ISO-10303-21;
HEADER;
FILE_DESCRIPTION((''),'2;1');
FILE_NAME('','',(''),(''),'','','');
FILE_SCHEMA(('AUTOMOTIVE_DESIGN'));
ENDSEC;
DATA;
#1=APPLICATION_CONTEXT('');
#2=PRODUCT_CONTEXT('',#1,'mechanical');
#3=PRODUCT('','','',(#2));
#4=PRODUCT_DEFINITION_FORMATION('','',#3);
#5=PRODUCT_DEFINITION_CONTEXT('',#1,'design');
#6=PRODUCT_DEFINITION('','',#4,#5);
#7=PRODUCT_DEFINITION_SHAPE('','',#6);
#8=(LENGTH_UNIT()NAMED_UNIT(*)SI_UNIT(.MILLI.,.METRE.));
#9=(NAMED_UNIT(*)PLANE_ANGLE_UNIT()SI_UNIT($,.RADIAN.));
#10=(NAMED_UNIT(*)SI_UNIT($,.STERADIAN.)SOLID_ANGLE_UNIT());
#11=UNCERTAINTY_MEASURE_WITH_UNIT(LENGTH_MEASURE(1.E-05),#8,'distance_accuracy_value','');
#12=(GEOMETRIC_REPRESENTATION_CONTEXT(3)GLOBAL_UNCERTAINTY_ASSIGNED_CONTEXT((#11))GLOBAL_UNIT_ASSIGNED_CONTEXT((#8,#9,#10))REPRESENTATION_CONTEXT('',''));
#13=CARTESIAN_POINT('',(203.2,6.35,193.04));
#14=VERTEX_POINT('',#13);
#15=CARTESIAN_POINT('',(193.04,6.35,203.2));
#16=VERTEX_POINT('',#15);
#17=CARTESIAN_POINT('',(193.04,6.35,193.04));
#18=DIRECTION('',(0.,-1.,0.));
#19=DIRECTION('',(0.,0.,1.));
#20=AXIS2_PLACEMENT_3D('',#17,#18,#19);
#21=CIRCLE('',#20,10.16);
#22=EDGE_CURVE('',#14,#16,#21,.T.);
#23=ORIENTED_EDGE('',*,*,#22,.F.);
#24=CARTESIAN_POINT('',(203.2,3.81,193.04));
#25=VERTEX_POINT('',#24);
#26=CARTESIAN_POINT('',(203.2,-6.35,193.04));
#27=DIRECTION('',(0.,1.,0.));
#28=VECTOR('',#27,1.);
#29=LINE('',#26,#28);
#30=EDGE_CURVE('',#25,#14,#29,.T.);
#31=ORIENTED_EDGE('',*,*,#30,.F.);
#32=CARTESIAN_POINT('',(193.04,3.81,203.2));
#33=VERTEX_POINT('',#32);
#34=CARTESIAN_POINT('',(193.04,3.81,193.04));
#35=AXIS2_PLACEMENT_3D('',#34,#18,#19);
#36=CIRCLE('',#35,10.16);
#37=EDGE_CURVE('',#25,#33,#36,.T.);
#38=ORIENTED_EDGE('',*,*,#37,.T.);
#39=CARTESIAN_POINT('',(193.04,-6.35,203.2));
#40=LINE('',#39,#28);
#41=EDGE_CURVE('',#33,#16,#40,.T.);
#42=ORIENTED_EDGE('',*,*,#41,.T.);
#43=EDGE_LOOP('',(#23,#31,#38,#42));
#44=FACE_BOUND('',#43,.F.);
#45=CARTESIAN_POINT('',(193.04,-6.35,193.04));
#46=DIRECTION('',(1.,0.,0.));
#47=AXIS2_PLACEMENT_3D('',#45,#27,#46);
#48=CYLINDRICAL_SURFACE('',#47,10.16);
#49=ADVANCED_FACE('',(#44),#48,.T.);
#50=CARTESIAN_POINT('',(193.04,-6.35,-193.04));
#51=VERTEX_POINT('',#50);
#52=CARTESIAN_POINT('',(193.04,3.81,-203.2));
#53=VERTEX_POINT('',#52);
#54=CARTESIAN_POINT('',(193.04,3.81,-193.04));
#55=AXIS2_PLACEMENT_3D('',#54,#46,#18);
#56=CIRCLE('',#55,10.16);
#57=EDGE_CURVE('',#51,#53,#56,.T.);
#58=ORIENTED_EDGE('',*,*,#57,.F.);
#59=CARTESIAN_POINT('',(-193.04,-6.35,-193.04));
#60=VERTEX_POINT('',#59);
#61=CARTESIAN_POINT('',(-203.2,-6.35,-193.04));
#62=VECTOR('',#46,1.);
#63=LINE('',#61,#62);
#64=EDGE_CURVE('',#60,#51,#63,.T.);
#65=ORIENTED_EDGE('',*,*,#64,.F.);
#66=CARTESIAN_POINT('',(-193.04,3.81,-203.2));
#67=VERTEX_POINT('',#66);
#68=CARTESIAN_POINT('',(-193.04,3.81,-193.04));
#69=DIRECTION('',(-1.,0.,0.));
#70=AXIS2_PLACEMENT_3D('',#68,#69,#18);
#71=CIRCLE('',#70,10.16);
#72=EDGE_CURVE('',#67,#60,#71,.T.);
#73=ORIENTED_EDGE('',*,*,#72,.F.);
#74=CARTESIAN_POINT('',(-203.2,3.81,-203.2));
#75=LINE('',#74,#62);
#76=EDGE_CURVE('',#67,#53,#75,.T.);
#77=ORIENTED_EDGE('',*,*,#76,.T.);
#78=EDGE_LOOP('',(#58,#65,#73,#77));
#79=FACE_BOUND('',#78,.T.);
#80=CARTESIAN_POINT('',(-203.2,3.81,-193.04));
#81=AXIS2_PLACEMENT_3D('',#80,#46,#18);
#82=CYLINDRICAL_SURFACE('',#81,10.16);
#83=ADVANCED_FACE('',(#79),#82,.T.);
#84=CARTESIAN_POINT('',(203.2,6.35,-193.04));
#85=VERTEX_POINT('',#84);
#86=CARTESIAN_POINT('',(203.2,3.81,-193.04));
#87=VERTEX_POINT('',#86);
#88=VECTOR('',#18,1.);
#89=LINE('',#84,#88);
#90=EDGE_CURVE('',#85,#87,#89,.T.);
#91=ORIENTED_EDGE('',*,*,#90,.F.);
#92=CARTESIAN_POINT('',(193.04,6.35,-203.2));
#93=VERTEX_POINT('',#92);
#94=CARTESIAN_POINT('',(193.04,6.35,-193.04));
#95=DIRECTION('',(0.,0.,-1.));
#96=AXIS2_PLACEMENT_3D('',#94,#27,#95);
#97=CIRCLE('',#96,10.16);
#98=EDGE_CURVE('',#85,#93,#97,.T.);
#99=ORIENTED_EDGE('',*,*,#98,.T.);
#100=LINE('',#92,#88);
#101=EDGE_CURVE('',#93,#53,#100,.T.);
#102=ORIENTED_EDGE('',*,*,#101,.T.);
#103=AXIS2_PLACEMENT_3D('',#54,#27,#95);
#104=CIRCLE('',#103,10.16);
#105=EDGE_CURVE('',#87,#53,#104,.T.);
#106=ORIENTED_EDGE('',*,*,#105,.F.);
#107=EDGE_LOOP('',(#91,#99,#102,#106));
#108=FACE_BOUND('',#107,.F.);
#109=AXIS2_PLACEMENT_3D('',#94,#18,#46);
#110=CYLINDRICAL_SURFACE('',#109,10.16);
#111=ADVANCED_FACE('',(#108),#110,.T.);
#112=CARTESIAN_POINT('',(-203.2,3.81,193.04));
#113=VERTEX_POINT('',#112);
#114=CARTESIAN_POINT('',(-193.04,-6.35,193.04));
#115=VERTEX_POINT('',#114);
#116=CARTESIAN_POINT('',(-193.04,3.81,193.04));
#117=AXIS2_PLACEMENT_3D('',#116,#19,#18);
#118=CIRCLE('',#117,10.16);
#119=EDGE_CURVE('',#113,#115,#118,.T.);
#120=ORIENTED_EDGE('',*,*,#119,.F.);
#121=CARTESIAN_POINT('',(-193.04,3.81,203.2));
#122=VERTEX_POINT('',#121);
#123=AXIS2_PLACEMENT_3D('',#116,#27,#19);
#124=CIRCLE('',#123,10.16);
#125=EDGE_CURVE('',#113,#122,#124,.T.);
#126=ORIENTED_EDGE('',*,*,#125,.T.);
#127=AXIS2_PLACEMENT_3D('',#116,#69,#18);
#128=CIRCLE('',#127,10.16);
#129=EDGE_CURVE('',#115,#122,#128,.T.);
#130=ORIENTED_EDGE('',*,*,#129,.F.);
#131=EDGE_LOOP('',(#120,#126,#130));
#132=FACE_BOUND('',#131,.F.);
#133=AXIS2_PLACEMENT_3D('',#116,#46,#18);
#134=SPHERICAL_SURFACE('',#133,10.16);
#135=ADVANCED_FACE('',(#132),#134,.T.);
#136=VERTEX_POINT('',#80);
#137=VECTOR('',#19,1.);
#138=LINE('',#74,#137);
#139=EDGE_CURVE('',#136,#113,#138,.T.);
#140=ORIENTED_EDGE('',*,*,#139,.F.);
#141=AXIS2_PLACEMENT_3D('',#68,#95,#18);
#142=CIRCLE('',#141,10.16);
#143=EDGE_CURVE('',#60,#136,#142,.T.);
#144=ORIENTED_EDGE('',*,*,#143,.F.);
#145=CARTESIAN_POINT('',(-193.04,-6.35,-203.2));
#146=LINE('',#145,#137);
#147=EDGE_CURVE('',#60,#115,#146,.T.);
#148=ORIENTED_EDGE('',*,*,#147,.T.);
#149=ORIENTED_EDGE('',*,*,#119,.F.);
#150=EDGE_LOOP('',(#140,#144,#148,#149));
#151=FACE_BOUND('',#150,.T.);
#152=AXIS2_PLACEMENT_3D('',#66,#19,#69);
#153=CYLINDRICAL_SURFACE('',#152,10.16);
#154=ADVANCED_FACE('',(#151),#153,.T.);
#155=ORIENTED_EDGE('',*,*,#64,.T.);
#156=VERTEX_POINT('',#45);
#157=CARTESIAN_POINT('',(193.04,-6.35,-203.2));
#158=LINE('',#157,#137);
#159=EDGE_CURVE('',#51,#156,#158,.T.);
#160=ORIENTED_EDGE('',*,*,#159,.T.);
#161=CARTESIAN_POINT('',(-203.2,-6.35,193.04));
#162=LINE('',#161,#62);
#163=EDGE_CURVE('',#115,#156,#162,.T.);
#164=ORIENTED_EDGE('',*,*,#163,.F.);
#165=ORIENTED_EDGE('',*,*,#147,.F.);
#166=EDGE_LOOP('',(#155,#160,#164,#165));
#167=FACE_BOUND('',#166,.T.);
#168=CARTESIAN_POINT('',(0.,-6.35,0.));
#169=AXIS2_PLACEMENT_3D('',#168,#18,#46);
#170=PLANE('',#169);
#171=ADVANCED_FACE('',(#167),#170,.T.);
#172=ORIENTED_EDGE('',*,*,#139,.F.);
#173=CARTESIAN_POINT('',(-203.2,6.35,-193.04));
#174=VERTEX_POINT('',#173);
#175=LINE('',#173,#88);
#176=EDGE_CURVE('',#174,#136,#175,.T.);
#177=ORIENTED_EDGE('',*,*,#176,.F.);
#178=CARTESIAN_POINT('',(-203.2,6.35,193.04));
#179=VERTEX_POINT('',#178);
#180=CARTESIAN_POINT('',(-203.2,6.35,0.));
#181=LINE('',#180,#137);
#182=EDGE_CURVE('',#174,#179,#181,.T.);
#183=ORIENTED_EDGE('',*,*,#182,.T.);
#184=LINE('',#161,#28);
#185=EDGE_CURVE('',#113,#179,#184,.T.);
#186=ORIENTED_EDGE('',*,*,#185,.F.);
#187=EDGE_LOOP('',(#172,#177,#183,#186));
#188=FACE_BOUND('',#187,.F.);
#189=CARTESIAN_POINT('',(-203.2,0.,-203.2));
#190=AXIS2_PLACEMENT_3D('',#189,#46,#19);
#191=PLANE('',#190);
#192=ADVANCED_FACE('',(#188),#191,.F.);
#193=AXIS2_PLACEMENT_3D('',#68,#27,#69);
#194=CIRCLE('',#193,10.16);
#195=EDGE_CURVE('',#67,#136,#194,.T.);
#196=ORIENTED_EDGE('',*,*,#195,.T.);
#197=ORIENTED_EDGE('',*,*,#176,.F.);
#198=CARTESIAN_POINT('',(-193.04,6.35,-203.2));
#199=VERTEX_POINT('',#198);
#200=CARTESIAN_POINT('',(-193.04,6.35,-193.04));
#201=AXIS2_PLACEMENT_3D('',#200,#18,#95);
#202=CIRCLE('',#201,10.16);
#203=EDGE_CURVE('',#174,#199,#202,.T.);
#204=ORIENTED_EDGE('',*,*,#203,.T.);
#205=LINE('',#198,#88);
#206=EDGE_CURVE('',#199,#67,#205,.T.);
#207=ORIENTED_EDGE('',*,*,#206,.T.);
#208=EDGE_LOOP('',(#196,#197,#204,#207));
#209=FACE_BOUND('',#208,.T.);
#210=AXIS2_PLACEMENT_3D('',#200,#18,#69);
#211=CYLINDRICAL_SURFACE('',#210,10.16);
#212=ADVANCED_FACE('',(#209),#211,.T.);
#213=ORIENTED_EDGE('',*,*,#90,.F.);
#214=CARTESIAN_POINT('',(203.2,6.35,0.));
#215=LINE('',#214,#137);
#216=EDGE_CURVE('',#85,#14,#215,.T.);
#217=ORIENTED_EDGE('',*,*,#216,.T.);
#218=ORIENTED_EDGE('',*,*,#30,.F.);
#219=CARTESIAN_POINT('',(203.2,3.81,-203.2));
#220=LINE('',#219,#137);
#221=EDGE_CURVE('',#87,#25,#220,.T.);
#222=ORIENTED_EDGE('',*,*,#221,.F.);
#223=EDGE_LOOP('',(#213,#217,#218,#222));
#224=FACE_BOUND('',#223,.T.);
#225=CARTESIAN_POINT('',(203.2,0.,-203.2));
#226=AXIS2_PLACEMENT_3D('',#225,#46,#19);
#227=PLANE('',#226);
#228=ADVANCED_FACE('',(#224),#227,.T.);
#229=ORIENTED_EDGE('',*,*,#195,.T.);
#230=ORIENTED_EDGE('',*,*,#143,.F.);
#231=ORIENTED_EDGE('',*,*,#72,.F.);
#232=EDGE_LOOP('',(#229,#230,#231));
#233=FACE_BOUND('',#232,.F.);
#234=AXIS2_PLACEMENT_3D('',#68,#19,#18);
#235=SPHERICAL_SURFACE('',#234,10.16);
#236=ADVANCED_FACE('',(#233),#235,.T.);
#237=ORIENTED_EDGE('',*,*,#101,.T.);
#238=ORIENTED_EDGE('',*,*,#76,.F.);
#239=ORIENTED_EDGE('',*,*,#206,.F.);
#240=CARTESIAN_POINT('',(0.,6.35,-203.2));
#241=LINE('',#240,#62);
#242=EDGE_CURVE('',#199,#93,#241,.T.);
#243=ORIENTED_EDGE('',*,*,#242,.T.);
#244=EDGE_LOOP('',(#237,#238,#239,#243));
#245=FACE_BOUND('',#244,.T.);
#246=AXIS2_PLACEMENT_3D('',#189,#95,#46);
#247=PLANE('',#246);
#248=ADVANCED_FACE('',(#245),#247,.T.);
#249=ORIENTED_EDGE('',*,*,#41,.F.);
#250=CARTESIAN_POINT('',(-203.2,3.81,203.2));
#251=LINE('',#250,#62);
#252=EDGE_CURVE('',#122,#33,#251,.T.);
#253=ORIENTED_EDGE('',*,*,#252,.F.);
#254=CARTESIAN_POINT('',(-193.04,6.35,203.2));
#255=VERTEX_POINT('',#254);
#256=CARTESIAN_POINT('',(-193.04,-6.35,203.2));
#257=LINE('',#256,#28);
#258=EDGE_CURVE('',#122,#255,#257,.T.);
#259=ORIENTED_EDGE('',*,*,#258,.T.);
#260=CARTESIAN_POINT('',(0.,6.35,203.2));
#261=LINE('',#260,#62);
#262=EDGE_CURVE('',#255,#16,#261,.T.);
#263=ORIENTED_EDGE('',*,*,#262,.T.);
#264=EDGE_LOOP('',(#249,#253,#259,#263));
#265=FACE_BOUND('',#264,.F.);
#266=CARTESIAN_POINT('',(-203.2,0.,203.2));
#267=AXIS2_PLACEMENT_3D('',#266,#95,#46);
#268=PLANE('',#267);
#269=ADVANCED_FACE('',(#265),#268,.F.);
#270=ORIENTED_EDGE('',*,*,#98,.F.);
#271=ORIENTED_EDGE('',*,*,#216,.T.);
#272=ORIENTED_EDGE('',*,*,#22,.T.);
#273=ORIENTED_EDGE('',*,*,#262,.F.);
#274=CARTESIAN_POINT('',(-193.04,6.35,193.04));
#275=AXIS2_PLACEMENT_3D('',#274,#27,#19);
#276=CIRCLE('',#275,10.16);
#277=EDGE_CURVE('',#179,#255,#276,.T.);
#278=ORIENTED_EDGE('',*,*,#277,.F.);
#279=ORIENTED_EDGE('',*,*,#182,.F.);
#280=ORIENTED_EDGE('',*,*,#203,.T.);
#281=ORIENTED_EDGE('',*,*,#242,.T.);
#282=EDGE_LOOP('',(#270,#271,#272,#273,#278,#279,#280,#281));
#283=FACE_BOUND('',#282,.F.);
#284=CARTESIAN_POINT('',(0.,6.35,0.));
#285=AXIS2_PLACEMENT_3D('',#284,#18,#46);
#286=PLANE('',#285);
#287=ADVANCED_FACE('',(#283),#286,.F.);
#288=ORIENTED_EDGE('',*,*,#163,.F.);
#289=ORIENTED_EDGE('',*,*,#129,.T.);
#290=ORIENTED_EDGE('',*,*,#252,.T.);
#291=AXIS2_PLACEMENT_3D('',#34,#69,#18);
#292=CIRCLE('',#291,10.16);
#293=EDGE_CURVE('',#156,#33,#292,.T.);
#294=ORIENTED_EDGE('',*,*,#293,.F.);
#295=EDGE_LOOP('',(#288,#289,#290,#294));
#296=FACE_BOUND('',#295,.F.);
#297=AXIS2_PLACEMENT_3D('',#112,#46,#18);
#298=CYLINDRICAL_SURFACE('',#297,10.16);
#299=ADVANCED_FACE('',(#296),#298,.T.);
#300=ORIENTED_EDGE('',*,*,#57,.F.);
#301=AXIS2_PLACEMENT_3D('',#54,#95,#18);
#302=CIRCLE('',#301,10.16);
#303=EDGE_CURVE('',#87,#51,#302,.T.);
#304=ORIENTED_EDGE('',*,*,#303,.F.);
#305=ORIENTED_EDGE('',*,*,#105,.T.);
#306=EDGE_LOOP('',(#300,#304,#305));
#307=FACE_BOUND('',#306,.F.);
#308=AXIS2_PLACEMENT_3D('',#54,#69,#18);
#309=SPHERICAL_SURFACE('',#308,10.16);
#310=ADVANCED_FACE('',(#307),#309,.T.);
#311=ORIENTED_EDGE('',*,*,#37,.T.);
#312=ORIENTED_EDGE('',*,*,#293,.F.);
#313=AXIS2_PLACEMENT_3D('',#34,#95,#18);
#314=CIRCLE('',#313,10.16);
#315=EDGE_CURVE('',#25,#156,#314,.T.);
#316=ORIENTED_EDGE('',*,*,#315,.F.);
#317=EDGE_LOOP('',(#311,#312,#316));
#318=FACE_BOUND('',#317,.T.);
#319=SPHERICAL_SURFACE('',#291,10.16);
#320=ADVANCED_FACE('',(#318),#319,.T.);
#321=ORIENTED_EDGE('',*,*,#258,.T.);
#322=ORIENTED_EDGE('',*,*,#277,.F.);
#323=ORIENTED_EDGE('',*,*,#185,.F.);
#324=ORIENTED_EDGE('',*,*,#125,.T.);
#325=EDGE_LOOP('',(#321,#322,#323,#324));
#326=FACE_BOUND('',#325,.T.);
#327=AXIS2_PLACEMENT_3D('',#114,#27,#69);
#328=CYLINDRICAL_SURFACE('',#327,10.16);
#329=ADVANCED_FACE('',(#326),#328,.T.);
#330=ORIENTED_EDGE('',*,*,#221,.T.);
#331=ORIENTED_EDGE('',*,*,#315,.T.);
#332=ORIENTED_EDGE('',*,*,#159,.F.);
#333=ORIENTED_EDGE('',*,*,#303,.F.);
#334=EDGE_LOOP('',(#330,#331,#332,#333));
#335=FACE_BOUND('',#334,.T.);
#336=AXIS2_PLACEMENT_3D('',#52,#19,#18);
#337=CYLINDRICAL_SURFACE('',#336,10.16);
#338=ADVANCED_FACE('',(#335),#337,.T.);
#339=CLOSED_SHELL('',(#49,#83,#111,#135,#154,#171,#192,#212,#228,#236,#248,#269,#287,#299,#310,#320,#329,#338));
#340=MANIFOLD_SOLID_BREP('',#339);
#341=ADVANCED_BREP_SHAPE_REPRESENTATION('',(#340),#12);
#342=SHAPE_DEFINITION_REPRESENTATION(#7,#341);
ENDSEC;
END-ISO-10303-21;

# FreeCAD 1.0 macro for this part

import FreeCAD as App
import Part
import Sketcher

V = App.Vector
Q = App.Units.Quantity


def edges_at(feature, points):
    """Names of the edges that pass closest to the given points."""
    edges = feature.Shape.Edges
    near = lambda p: min(range(len(edges)), key=lambda i: edges[i].distToShape(Part.Vertex(*p))[0])
    return sorted({f"Edge{near(p) + 1}" for p in points})


def add_polygon(sketch, points):
    """Adds a closed chain of lines whose ends are joined by coincident constraints."""
    first, n = sketch.GeometryCount, len(points)
    for a, b in zip(points, points[1:] + points[:1]):
        sketch.addGeometry(Part.LineSegment(App.Vector(*a, 0), App.Vector(*b, 0)), False)
    for i in range(n):
        sketch.addConstraint(Sketcher.Constraint("Coincident", first + i, 2, first + (i + 1) % n, 1))

doc = App.newDocument("Part")
body = doc.addObject("PartDesign::Body", "Body")

# Sketch on XZ plane
sketch1 = doc.addObject("Sketcher::SketchObject", "Sketch")
body.addObject(sketch1)
sketch1.AttachmentSupport = (doc.XZ_Plane, [""])
sketch1.MapMode = "FlatFace"
add_polygon(sketch1, [(-203, 203), (-203, -203), (203, -203), (203, 203)])  # lines 0-3
sketch1.addConstraint(Sketcher.Constraint("Vertical", 0))
sketch1.addConstraint(Sketcher.Constraint("Horizontal", 1))
sketch1.addConstraint(Sketcher.Constraint("Vertical", 2))
sketch1.addConstraint(Sketcher.Constraint("Horizontal", 3))
sketch1.addConstraint(Sketcher.Constraint("Symmetric", 0, 2, 2, 2, -1, 1))
sketch1.addConstraint(Sketcher.Constraint("Equal", 3, 0))
sketch1.addConstraint(Sketcher.Constraint("DistanceX", 1, 1, 1, 2, Q("16 in")))
pad1 = doc.addObject("PartDesign::Pad", "Pad")
body.addObject(pad1)
pad1.Profile = sketch1
pad1.Length = Q("0.5 in")
pad1.Midplane = True
doc.recompute()

fillet = doc.addObject("PartDesign::Fillet", "Fillet")
body.addObject(fillet)
fillet.Base = (pad1, edges_at(pad1, [
    (0, -6.35, 203.2),
    (-203.2, -6.35, 0),
    (0, -6.35, -203.2),
    (203.2, -6.35, 0),
    (-203.2, 0, -203.2),
    (-203.2, 0, 203.2),
    (203.2, 0, 203.2),
    (203.2, 0, -203.2),
]))
fillet.Radius = Q("0.4 in")

doc.recompute()
